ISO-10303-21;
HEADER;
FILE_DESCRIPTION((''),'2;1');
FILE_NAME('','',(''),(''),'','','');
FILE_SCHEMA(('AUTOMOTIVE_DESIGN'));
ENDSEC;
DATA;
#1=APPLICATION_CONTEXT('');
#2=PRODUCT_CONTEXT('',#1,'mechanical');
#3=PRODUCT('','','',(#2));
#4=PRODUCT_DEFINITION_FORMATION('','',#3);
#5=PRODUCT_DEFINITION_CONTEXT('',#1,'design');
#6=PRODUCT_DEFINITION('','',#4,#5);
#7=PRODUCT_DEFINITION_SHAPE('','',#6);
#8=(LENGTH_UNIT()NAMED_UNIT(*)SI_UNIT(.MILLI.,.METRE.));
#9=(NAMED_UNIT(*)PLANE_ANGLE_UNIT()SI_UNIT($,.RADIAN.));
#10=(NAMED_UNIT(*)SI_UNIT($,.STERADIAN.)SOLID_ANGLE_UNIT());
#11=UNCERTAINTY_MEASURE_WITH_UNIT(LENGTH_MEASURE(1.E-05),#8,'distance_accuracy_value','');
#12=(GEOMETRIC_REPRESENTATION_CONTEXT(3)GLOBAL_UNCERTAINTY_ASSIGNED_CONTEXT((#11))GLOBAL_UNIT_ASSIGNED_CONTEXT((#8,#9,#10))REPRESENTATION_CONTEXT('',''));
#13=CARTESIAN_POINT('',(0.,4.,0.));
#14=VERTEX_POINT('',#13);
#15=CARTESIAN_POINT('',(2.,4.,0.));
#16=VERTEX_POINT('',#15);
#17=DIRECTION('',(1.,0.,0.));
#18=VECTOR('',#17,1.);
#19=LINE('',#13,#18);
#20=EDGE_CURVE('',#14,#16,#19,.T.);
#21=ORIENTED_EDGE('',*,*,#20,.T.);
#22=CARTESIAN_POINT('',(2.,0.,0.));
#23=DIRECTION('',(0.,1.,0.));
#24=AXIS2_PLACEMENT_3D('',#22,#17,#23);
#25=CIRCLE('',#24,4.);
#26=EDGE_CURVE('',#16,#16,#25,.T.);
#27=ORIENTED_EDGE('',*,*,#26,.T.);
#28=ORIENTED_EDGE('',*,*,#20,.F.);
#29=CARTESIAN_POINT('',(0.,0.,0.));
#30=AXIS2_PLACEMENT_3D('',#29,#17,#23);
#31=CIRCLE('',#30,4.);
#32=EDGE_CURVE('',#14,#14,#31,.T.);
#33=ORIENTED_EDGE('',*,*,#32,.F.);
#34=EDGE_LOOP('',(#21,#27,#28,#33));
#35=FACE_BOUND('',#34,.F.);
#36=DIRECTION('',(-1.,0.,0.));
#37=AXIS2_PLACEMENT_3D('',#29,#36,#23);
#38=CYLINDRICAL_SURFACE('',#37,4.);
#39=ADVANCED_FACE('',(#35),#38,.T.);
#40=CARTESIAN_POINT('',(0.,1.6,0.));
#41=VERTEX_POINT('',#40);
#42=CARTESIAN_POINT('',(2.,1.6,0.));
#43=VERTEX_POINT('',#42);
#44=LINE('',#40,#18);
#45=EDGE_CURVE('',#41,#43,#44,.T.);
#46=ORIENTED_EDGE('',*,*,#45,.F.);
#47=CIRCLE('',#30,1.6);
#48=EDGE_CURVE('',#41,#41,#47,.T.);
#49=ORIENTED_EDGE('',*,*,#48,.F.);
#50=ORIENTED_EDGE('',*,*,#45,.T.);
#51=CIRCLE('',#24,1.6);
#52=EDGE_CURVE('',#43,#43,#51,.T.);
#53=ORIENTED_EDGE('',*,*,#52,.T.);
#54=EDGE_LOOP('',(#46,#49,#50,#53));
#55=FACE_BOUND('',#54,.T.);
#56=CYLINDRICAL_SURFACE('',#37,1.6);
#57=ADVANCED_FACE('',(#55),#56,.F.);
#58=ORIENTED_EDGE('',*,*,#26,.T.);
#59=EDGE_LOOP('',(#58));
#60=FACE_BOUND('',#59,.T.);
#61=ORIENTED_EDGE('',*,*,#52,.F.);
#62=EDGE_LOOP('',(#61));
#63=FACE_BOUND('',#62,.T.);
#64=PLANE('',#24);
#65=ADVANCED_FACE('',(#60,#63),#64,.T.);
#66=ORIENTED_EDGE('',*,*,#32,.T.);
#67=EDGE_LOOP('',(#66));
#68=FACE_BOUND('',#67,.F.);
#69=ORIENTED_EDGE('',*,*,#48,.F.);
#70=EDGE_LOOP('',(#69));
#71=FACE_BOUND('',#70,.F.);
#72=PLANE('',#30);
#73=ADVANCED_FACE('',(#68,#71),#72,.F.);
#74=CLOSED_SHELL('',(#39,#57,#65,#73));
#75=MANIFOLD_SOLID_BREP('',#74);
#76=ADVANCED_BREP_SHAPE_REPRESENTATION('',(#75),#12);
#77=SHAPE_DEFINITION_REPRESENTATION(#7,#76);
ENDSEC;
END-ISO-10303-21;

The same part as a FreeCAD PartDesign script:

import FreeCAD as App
import Part
import Sketcher

V = App.Vector
Q = App.Units.Quantity

doc = App.newDocument("Part")
body = doc.addObject("PartDesign::Body", "Body")

# Sketch on YZ plane
sketch1 = body.newObject("Sketcher::SketchObject", "Sketch")
sketch1.AttachmentSupport = (doc.getObject("YZ_Plane"), [""])
sketch1.MapMode = "FlatFace"
sketch1.addGeometry([
    Part.Circle(V(0, 0, 0), V(0, 0, 1), 4),
    Part.Circle(V(0, 0, 0), V(0, 0, 1), 1.6),
], False)
sketch1.addConstraint([
    Sketcher.Constraint("Coincident", 0, 3, -1, 1),
    Sketcher.Constraint("Coincident", 1, 3, -1, 1),
    Sketcher.Constraint("Diameter", 0, Q("8 mm")),
    Sketcher.Constraint("Diameter", 1, Q("3.2 mm")),
])
pad1 = body.newObject("PartDesign::Pad", "Pad")
pad1.Profile = sketch1
pad1.Length = 2

doc.recompute()
